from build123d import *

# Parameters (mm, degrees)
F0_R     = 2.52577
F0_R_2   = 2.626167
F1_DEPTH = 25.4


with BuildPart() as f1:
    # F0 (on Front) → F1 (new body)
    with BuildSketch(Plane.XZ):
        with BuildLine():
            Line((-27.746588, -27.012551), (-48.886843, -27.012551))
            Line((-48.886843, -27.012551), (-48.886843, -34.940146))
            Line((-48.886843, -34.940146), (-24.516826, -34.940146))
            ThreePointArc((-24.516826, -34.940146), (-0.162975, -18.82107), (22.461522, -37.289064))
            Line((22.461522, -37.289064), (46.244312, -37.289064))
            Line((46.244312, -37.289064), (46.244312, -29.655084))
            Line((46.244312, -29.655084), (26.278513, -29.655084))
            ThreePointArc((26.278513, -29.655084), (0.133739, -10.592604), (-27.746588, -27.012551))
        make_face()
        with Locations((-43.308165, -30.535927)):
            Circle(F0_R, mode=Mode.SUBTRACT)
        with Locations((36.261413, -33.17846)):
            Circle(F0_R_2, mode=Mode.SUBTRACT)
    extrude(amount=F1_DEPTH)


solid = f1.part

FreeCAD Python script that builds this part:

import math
import FreeCAD as App
import Part
import Sketcher

V = App.Vector

doc = App.newDocument("Part")
params = doc.addObject("Spreadsheet::Sheet", "Params")
for row, (alias, value) in enumerate([
    ("pad1_length", "1 in"),
], start=1):
    params.set(f"A{row}", alias)
    params.set(f"B{row}", "=" + value)
    params.setAlias(f"B{row}", alias)

body = doc.addObject("PartDesign::Body", "Body")

# Sketch on XZ plane
sketch1 = body.newObject("Sketcher::SketchObject", "Sketch")
sketch1.AttachmentSupport = (doc.getObject("XZ_Plane"), [""])
sketch1.MapMode = "FlatFace"
sketch1.addGeometry(Part.LineSegment(V(-27.746588, -27.012551, 0), V(-48.886843, -27.012551, 0)), False)
sketch1.addGeometry(Part.LineSegment(V(-48.886843, -27.012551, 0), V(-48.886843, -34.940146, 0)), False)
sketch1.addGeometry(Part.LineSegment(V(-48.886843, -34.940146, 0), V(-24.516826, -34.940146, 0)), False)
sketch1.addGeometry(Part.ArcOfCircle(Part.Circle(V(-1.392926, -43.420079, 0), V(0, 0, 1), 24.629739), math.radians(14.414046), math.radians(159.861142)), False)
sketch1.addGeometry(Part.LineSegment(V(22.461522, -37.289064, 0), V(46.244312, -37.289064, 0)), False)
sketch1.addGeometry(Part.LineSegment(V(46.244312, -37.289064, 0), V(46.244312, -29.655084, 0)), False)
sketch1.addGeometry(Part.LineSegment(V(46.244312, -29.655084, 0), V(26.278513, -29.655084, 0)), False)
sketch1.addGeometry(Part.ArcOfCircle(Part.Circle(V(-1.306021, -40.027697, 0), V(0, 0, 1), 29.470284), math.radians(20.607768), math.radians(153.791672)), False)
sketch1.addGeometry(Part.Circle(V(36.261413, -33.17846, 0), V(0, 0, 1), 2.626167), False)
sketch1.addGeometry(Part.Circle(V(-43.308165, -30.535927, 0), V(0, 0, 1), 2.52577), False)
sketch1.addConstraint(Sketcher.Constraint("Coincident", 0, 2, 1, 1))
sketch1.addConstraint(Sketcher.Constraint("Coincident", 1, 2, 2, 1))
sketch1.addConstraint(Sketcher.Constraint("Coincident", 2, 2, 3, 2))
sketch1.addConstraint(Sketcher.Constraint("Coincident", 3, 1, 4, 1))
sketch1.addConstraint(Sketcher.Constraint("Coincident", 4, 2, 5, 1))
sketch1.addConstraint(Sketcher.Constraint("Coincident", 5, 2, 6, 1))
sketch1.addConstraint(Sketcher.Constraint("Coincident", 6, 2, 7, 1))
sketch1.addConstraint(Sketcher.Constraint("Coincident", 7, 2, 0, 1))
sketch1.addConstraint(Sketcher.Constraint("Horizontal", 0))
sketch1.addConstraint(Sketcher.Constraint("Vertical", 1))
sketch1.addConstraint(Sketcher.Constraint("Horizontal", 2))
sketch1.addConstraint(Sketcher.Constraint("Horizontal", 4))
sketch1.addConstraint(Sketcher.Constraint("Vertical", 5))
sketch1.addConstraint(Sketcher.Constraint("Horizontal", 6))
sketch1.addConstraint(Sketcher.Constraint("Diameter", 9, 5.05154))
sketch1.addConstraint(Sketcher.Constraint("Radius", 3, 24.629739))
sketch1.addConstraint(Sketcher.Constraint("Diameter", 8, 5.252334))
sketch1.addConstraint(Sketcher.Constraint("DistanceX", 6, 2, 6, 1, 19.965799))
sketch1.addConstraint(Sketcher.Constraint("Radius", 7, 29.470284))
sketch1.addConstraint(Sketcher.Constraint("DistanceX", 4, 1, 4, 2, 23.78279))
sketch1.addConstraint(Sketcher.Constraint("DistanceY", 5, 1, 5, 2, 7.63398))
sketch1.addConstraint(Sketcher.Constraint("DistanceX", 2, 2, 3, 3, 23.1239))
sketch1.addConstraint(Sketcher.Constraint("DistanceX", 8, 3, 4, 2, 9.982899))
sketch1.addConstraint(Sketcher.Constraint("DistanceX", 0, 2, 0, 1, 21.140255))
sketch1.addConstraint(Sketcher.Constraint("DistanceX", 2, 1, 2, 2, 24.370017))
sketch1.addConstraint(Sketcher.Constraint("DistanceY", 1, 2, 1, 1, 7.927595))
sketch1.addConstraint(Sketcher.Constraint("DistanceY", 3, 3, -1, 1, 43.420079))
sketch1.addConstraint(Sketcher.Constraint("DistanceX", 7, 3, -1, 1, 1.306021))
sketch1.addConstraint(Sketcher.Constraint("DistanceY", 8, 3, -1, 1, 33.17846))
sketch1.addConstraint(Sketcher.Constraint("DistanceX", -1, 1, 3, 1, 22.461522))
sketch1.addConstraint(Sketcher.Constraint("DistanceY", 7, 3, 9, 3, 9.49177))
sketch1.addConstraint(Sketcher.Constraint("DistanceX", 9, 3, 3, 3, 41.915239))
pad1 = body.newObject("PartDesign::Pad", "Pad")
pad1.Profile = sketch1
pad1.setExpression("Length", "Params.pad1_length")

doc.recompute()
